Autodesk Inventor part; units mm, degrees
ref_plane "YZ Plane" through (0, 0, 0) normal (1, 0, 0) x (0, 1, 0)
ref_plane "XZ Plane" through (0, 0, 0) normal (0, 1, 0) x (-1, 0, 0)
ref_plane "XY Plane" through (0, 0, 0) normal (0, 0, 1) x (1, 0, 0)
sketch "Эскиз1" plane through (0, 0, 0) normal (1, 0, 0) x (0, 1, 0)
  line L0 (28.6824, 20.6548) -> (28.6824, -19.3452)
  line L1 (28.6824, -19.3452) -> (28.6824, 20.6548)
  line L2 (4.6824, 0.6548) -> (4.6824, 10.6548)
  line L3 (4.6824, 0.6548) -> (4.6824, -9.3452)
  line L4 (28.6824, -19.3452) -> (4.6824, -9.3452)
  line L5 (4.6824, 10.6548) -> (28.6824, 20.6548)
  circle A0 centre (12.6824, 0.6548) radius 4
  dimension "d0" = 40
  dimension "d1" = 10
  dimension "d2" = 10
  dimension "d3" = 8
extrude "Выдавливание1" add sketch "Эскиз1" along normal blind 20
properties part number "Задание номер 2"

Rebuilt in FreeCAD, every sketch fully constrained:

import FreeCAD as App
import Part
import Sketcher
Q = App.Units.Quantity

doc = App.newDocument("Part")
body = doc.addObject("PartDesign::Body", "Body")

# Sketch on YZ plane
sketch1 = doc.addObject("Sketcher::SketchObject", "Sketch")
body.addObject(sketch1)
sketch1.AttachmentSupport = (doc.YZ_Plane, [""])
sketch1.MapMode = "FlatFace"
sketch1.addGeometry(Part.LineSegment(App.Vector(28.7, -19.3, 0), App.Vector(28.7, 20.7, 0)), False)
sketch1.addGeometry(Part.LineSegment(App.Vector(28.7, 20.7, 0), App.Vector(4.7, 10.7, 0)), False)
sketch1.addGeometry(Part.LineSegment(App.Vector(4.7, 10.7, 0), App.Vector(4.7, -9.3, 0)), False)
sketch1.addGeometry(Part.LineSegment(App.Vector(4.7, -9.3, 0), App.Vector(28.7, -19.3, 0)), False)
sketch1.addGeometry(Part.Circle(App.Vector(12.7, 0.7, 0), App.Vector(0, 0, 1), 4), False)
sketch1.addConstraint(Sketcher.Constraint("Coincident", 0, 2, 1, 1))
sketch1.addConstraint(Sketcher.Constraint("Coincident", 1, 2, 2, 1))
sketch1.addConstraint(Sketcher.Constraint("Coincident", 2, 2, 3, 1))
sketch1.addConstraint(Sketcher.Constraint("Coincident", 3, 2, 0, 1))
sketch1.addConstraint(Sketcher.Constraint("Vertical", 0))
sketch1.addConstraint(Sketcher.Constraint("Vertical", 2))
sketch1.addConstraint(Sketcher.Constraint("Equal", 1, 3))
sketch1.addConstraint(Sketcher.Constraint("Diameter", 4, Q("8 mm")))
sketch1.addConstraint(Sketcher.Constraint("DistanceY", 0, 1, 0, 2, Q("40 mm")))
sketch1.addConstraint(Sketcher.Constraint("DistanceX", 1, 2, 4, 3, Q("8 mm")))
sketch1.addConstraint(Sketcher.Constraint("DistanceY", 4, 3, 1, 2, Q("10 mm")))
sketch1.addConstraint(Sketcher.Constraint("DistanceY", 1, 2, 0, 2, Q("10 mm")))
sketch1.addConstraint(Sketcher.Constraint("Distance", 1, Q("26 mm")))
sketch1.addConstraint(Sketcher.Constraint("DistanceX", -1, 1, 4, 3, Q("12.6824 mm")))
sketch1.addConstraint(Sketcher.Constraint("DistanceY", -1, 1, 4, 3, Q("0.6548 mm")))
pad1 = doc.addObject("PartDesign::Pad", "Pad")
body.addObject(pad1)
pad1.Profile = sketch1
pad1.Length = 20

doc.recompute()
